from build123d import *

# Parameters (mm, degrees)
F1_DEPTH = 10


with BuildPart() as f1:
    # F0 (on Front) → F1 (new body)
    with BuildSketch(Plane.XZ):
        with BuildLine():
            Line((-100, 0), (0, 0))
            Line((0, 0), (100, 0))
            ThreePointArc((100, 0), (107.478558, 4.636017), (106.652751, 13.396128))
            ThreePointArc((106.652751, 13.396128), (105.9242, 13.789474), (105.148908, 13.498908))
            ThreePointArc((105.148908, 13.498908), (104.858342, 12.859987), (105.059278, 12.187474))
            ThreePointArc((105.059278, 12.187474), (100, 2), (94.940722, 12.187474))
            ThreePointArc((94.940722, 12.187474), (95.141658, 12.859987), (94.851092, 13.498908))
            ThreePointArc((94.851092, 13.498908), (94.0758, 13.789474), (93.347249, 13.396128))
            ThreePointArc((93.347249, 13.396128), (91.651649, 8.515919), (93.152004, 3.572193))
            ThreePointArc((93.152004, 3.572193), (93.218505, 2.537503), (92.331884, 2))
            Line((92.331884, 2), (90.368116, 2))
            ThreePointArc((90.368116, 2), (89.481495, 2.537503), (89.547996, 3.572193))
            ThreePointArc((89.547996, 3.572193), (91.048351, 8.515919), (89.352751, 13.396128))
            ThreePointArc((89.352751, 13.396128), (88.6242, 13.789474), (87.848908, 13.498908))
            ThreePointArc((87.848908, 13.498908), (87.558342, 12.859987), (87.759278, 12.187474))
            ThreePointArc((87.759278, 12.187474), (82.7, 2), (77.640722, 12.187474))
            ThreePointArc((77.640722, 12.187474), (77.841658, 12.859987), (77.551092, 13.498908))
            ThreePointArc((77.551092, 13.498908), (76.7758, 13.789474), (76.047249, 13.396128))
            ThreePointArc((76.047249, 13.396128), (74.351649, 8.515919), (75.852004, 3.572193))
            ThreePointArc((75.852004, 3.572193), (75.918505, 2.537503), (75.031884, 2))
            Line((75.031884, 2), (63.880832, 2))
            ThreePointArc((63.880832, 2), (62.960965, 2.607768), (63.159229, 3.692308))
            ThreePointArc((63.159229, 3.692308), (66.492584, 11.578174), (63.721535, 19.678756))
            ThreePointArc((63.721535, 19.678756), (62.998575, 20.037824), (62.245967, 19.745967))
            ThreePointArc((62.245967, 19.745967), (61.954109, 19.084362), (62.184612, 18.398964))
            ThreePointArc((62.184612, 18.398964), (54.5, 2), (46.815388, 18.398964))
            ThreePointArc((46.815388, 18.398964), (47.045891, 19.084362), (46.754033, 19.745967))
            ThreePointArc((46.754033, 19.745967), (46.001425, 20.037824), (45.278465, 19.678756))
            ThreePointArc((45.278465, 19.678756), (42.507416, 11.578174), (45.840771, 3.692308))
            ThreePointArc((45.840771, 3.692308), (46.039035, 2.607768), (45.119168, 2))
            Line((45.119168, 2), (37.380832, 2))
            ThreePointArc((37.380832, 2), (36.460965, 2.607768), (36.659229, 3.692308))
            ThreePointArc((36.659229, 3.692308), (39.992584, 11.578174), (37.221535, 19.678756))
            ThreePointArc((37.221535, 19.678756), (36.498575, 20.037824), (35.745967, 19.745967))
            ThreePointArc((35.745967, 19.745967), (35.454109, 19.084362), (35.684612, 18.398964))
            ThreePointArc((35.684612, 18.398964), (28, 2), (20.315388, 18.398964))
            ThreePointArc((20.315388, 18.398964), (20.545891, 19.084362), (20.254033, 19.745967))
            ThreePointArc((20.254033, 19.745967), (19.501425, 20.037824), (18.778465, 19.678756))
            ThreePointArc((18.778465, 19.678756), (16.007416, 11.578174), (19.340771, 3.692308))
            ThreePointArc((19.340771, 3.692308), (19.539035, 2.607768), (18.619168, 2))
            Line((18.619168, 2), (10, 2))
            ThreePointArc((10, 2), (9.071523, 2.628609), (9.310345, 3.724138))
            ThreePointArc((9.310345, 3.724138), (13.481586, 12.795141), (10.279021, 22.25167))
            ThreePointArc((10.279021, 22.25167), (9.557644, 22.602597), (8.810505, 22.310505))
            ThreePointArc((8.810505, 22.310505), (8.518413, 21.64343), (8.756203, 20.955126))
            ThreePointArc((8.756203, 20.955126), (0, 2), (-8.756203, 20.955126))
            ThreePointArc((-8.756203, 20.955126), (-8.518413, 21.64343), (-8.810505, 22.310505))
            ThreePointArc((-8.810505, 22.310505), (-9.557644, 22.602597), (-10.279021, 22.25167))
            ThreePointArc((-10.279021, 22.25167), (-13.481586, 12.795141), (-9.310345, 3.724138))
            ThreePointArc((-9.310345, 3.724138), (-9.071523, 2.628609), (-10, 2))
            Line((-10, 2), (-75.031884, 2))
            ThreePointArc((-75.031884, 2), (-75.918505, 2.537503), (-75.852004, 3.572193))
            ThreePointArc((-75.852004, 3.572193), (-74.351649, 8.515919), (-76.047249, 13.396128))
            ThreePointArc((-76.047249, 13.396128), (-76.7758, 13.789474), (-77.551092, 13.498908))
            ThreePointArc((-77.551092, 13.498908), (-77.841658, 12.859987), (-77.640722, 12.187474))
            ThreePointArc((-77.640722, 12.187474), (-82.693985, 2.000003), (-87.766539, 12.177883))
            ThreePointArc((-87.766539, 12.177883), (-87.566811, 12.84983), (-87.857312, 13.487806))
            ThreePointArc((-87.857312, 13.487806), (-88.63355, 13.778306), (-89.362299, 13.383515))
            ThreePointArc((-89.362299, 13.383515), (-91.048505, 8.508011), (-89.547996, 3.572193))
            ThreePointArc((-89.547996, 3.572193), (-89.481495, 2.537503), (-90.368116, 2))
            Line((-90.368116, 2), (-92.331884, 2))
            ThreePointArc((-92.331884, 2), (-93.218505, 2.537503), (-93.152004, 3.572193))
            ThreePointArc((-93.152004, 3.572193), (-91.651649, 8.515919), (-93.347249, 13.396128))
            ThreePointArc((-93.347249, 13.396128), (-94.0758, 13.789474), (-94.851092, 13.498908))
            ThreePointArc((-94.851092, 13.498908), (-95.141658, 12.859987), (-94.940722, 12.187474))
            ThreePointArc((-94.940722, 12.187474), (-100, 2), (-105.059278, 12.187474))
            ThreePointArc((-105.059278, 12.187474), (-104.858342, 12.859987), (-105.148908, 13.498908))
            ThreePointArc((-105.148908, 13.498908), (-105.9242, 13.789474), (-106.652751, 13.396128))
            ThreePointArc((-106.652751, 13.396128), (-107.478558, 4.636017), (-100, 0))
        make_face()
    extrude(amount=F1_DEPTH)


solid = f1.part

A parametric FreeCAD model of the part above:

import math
import FreeCAD as App
import Part
import Sketcher
from FreeCAD import Vector
Q = App.Units.Quantity

doc = App.newDocument("Part")
params = doc.addObject("Spreadsheet::Sheet", "Params")
for row, (alias, value) in enumerate([
    ("sketch1_radius", "0.999999 mm"),
    ("sketch1_radius2", "11.999999 mm"),
    ("sketch1_radius3", "13.500001 mm"),
    ("sketch1_width", "200 mm"),
    ("sketch1_radius4", "8.35 mm"),
    ("pad1_length", "10 mm"),
], start=1):
    params.set(f"A{row}", alias)
    params.set(f"B{row}", "=" + value)
    params.setAlias(f"B{row}", alias)

body = doc.addObject("PartDesign::Body", "Body")

# Sketch on XZ plane
sketch1 = doc.addObject("Sketcher::SketchObject", "Sketch")
body.addObject(sketch1)
sketch1.AttachmentSupport = (doc.XZ_Plane, [""])
sketch1.MapMode = "FlatFace"
sketch1.addGeometry([
    Part.LineSegment(Vector(-100, 0, 0), Vector(100, 0, 0)),  # 0
    Part.ArcOfCircle(Part.Circle(Vector(100, 8.35, 0), Vector(0, 0, 1), 8.35), math.radians(-89.999999), math.radians(37.180405)),  # 1
    Part.ArcOfCircle(Part.Circle(Vector(105.856015, 12.791802, 0), Vector(0, 0, 1), 0.999999), math.radians(37.180388), math.radians(135.000023)),  # 2
    Part.ArcOfCircle(Part.Circle(Vector(105.856015, 12.791801, 0), Vector(0, 0, 1), 1), math.radians(134.999998), math.radians(217.180398)),  # 3
    Part.ArcOfCircle(Part.Circle(Vector(100, 8.35, 0), Vector(0, 0, 1), 6.35), math.radians(142.819599), math.radians(397.180401)),  # 4
    Part.ArcOfCircle(Part.Circle(Vector(94.143985, 12.791801, 0), Vector(0, 0, 1), 1), math.radians(-37.180398), math.radians(45.000002)),  # 5
    Part.ArcOfCircle(Part.Circle(Vector(94.143985, 12.791802, 0), Vector(0, 0, 1), 0.999999), math.radians(44.999977), math.radians(142.819612)),  # 6
    Part.ArcOfCircle(Part.Circle(Vector(100.000001, 8.350001, 0), Vector(0, 0, 1), 8.35), math.radians(142.819601), math.radians(214.903258)),  # 7
    Part.ArcOfCircle(Part.Circle(Vector(92.331884, 3.000001, 0), Vector(0, 0, 1), 1.000001), math.radians(-89.999986), math.radians(34.903221)),  # 8
    Part.LineSegment(Vector(92.331884, 2, 0), Vector(90.368116, 2, 0)),  # 9
    Part.ArcOfCircle(Part.Circle(Vector(90.368116, 3.000001, 0), Vector(0, 0, 1), 1.000001), math.radians(145.096779), math.radians(269.999986)),  # 10
    Part.ArcOfCircle(Part.Circle(Vector(82.699999, 8.350001, 0), Vector(0, 0, 1), 8.35), math.radians(-34.903258), math.radians(37.180399)),  # 11
    Part.ArcOfCircle(Part.Circle(Vector(88.556015, 12.791802, 0), Vector(0, 0, 1), 0.999999), math.radians(37.180388), math.radians(135.000023)),  # 12
    Part.ArcOfCircle(Part.Circle(Vector(88.556015, 12.791801, 0), Vector(0, 0, 1), 1), math.radians(134.999998), math.radians(217.180398)),  # 13
    Part.ArcOfCircle(Part.Circle(Vector(82.7, 8.35, 0), Vector(0, 0, 1), 6.35), math.radians(142.819599), math.radians(397.180401)),  # 14
    Part.ArcOfCircle(Part.Circle(Vector(76.843985, 12.791801, 0), Vector(0, 0, 1), 1), math.radians(-37.180398), math.radians(45.000002)),  # 15
    Part.ArcOfCircle(Part.Circle(Vector(76.843985, 12.791802, 0), Vector(0, 0, 1), 0.999999), math.radians(44.999977), math.radians(142.819612)),  # 16
    Part.ArcOfCircle(Part.Circle(Vector(82.700001, 8.350001, 0), Vector(0, 0, 1), 8.35), math.radians(142.819601), math.radians(214.903258)),  # 17
    Part.ArcOfCircle(Part.Circle(Vector(75.031884, 3.000001, 0), Vector(0, 0, 1), 1.000001), math.radians(-89.999986), math.radians(34.903221)),  # 18
    Part.LineSegment(Vector(75.031884, 2, 0), Vector(63.880832, 2, 0)),  # 19
    Part.ArcOfCircle(Part.Circle(Vector(63.880831, 3, 0), Vector(0, 0, 1), 1), math.radians(136.18693), math.radians(270.000034)),  # 20
    Part.ArcOfCircle(Part.Circle(Vector(54.500002, 12, 0), Vector(0, 0, 1), 11.999999), math.radians(-43.813067), math.radians(39.784094)),  # 21
    Part.ArcOfCircle(Part.Circle(Vector(62.953073, 19.038859, 0), Vector(0, 0, 1), 1), math.radians(39.784098), math.radians(134.999949)),  # 22
    Part.ArcOfCircle(Part.Circle(Vector(62.953072, 19.03886, 0), Vector(0, 0, 1), 0.999999), math.radians(134.999937), math.radians(219.784106)),  # 23
    Part.ArcOfCircle(Part.Circle(Vector(54.5, 12, 0), Vector(0, 0, 1), 10), math.radians(140.215906), math.radians(399.784094)),  # 24
    Part.ArcOfCircle(Part.Circle(Vector(46.046928, 19.03886, 0), Vector(0, 0, 1), 0.999999), math.radians(-39.784106), math.radians(45.000063)),  # 25
    Part.ArcOfCircle(Part.Circle(Vector(46.046927, 19.038859, 0), Vector(0, 0, 1), 1), math.radians(45.000051), math.radians(140.215902)),  # 26
    Part.ArcOfCircle(Part.Circle(Vector(54.499998, 12, 0), Vector(0, 0, 1), 11.999999), math.radians(140.215906), math.radians(223.813067)),  # 27
    Part.ArcOfCircle(Part.Circle(Vector(45.119169, 3, 0), Vector(0, 0, 1), 1), math.radians(-90.000034), math.radians(43.81307)),  # 28
    Part.LineSegment(Vector(45.119168, 2, 0), Vector(37.380832, 2, 0)),  # 29
    Part.ArcOfCircle(Part.Circle(Vector(37.380831, 3, 0), Vector(0, 0, 1), 1), math.radians(136.18693), math.radians(270.000034)),  # 30
    Part.ArcOfCircle(Part.Circle(Vector(28.000002, 12, 0), Vector(0, 0, 1), 11.999999), math.radians(-43.813067), math.radians(39.784094)),  # 31
    Part.ArcOfCircle(Part.Circle(Vector(36.453073, 19.038859, 0), Vector(0, 0, 1), 1), math.radians(39.784098), math.radians(134.999949)),  # 32
    Part.ArcOfCircle(Part.Circle(Vector(36.453072, 19.03886, 0), Vector(0, 0, 1), 0.999999), math.radians(134.999937), math.radians(219.784106)),  # 33
    Part.ArcOfCircle(Part.Circle(Vector(28, 12, 0), Vector(0, 0, 1), 10), math.radians(140.215906), math.radians(399.784094)),  # 34
    Part.ArcOfCircle(Part.Circle(Vector(19.546928, 19.03886, 0), Vector(0, 0, 1), 0.999999), math.radians(-39.784106), math.radians(45.000063)),  # 35
    Part.ArcOfCircle(Part.Circle(Vector(19.546927, 19.038859, 0), Vector(0, 0, 1), 1), math.radians(45.000051), math.radians(140.215902)),  # 36
    Part.ArcOfCircle(Part.Circle(Vector(27.999998, 12, 0), Vector(0, 0, 1), 11.999999), math.radians(140.215906), math.radians(223.813067)),  # 37
    Part.ArcOfCircle(Part.Circle(Vector(18.619169, 3, 0), Vector(0, 0, 1), 1), math.radians(-90.000034), math.radians(43.81307)),  # 38
    Part.LineSegment(Vector(18.619168, 2, 0), Vector(10, 2, 0)),  # 39
    Part.ArcOfCircle(Part.Circle(Vector(9.999999, 3, 0), Vector(0, 0, 1), 1), math.radians(133.602771), math.radians(270.000037)),  # 40
    Part.ArcOfCircle(Part.Circle(Vector(-0.000002, 13.5, 0), Vector(0, 0, 1), 13.500001), math.radians(-46.397175), math.radians(40.411428)),  # 41
    Part.ArcOfCircle(Part.Circle(Vector(9.517612, 21.603399, 0), Vector(0, 0, 1), 0.999999), math.radians(40.411383), math.radians(135.000045)),  # 42
    Part.ArcOfCircle(Part.Circle(Vector(9.517611, 21.603398, 0), Vector(0, 0, 1), 0.999999), math.radians(134.999949), math.radians(220.4115)),  # 43
    Part.ArcOfCircle(Part.Circle(Vector(0, 13.5, 0), Vector(0, 0, 1), 11.5), math.radians(139.588567), math.radians(400.411433)),  # 44
    Part.ArcOfCircle(Part.Circle(Vector(-9.517611, 21.603398, 0), Vector(0, 0, 1), 0.999999), math.radians(-40.4115), math.radians(45.000051)),  # 45
    Part.ArcOfCircle(Part.Circle(Vector(-9.517612, 21.603399, 0), Vector(0, 0, 1), 0.999999), math.radians(44.999955), math.radians(139.588617)),  # 46
    Part.ArcOfCircle(Part.Circle(Vector(0.000002, 13.5, 0), Vector(0, 0, 1), 13.500001), math.radians(139.588572), math.radians(226.397175)),  # 47
    Part.ArcOfCircle(Part.Circle(Vector(-9.999999, 3, 0), Vector(0, 0, 1), 1), math.radians(-90.000037), math.radians(46.397229)),  # 48
    Part.LineSegment(Vector(-10, 2, 0), Vector(-75.031884, 2, 0)),  # 49
    Part.ArcOfCircle(Part.Circle(Vector(-75.031884, 3.000001, 0), Vector(0, 0, 1), 1.000001), math.radians(145.096779), math.radians(269.999986)),  # 50
    Part.ArcOfCircle(Part.Circle(Vector(-82.700001, 8.350001, 0), Vector(0, 0, 1), 8.35), math.radians(-34.903258), math.radians(37.180399)),  # 51
    Part.ArcOfCircle(Part.Circle(Vector(-76.843985, 12.791802, 0), Vector(0, 0, 1), 0.999999), math.radians(37.180388), math.radians(135.000023)),  # 52
    Part.ArcOfCircle(Part.Circle(Vector(-76.843985, 12.791801, 0), Vector(0, 0, 1), 1), math.radians(134.999998), math.radians(217.180398)),  # 53
    Part.ArcOfCircle(Part.Circle(Vector(-82.7, 8.35, 0), Vector(0, 0, 1), 6.35), math.radians(142.928142), math.radians(397.180398)),  # 54
    Part.ArcOfCircle(Part.Circle(Vector(-88.564418, 12.780699, 0), Vector(0, 0, 1), 0.999999), math.radians(-37.071924), math.radians(45.000037)),  # 55
    Part.ArcOfCircle(Part.Circle(Vector(-88.564419, 12.780697, 0), Vector(0, 0, 1), 1.000001), math.radians(45.000094), math.radians(142.928076)),  # 56
    Part.ArcOfCircle(Part.Circle(Vector(-82.700003, 8.350001, 0), Vector(0, 0, 1), 8.349998), math.radians(142.928135), math.radians(214.903271)),  # 57
    Part.ArcOfCircle(Part.Circle(Vector(-90.368116, 3.000001, 0), Vector(0, 0, 1), 1.000001), math.radians(-89.999986), math.radians(34.903221)),  # 58
    Part.LineSegment(Vector(-90.368116, 2, 0), Vector(-92.331884, 2, 0)),  # 59
    Part.ArcOfCircle(Part.Circle(Vector(-92.331884, 3.000001, 0), Vector(0, 0, 1), 1.000001), math.radians(145.096779), math.radians(269.999986)),  # 60
    Part.ArcOfCircle(Part.Circle(Vector(-100.000001, 8.350001, 0), Vector(0, 0, 1), 8.35), math.radians(-34.903258), math.radians(37.180399)),  # 61
    Part.ArcOfCircle(Part.Circle(Vector(-94.143985, 12.791802, 0), Vector(0, 0, 1), 0.999999), math.radians(37.180388), math.radians(135.000023)),  # 62
    Part.ArcOfCircle(Part.Circle(Vector(-94.143985, 12.791801, 0), Vector(0, 0, 1), 1), math.radians(134.999998), math.radians(217.180398)),  # 63
    Part.ArcOfCircle(Part.Circle(Vector(-100, 8.35, 0), Vector(0, 0, 1), 6.35), math.radians(142.819599), math.radians(397.180401)),  # 64
    Part.ArcOfCircle(Part.Circle(Vector(-105.856015, 12.791801, 0), Vector(0, 0, 1), 1), math.radians(-37.180398), math.radians(45.000002)),  # 65
    Part.ArcOfCircle(Part.Circle(Vector(-105.856015, 12.791802, 0), Vector(0, 0, 1), 0.999999), math.radians(44.999977), math.radians(142.819612)),  # 66
    Part.ArcOfCircle(Part.Circle(Vector(-100, 8.35, 0), Vector(0, 0, 1), 8.35), math.radians(142.819595), math.radians(269.999999)),  # 67
], False)
sketch1.addConstraint([
    Sketcher.Constraint("Tangent", 0, 2, 1, 1),
    Sketcher.Constraint("Tangent", 1, 2, 2, 1),
    Sketcher.Constraint("Tangent", 2, 2, 3, 1),
    Sketcher.Constraint("Tangent", 3, 2, 4, 2),
    Sketcher.Constraint("Tangent", 4, 1, 5, 1),
    Sketcher.Constraint("Tangent", 5, 2, 6, 1),
    Sketcher.Constraint("Tangent", 6, 2, 7, 1),
    Sketcher.Constraint("Tangent", 7, 2, 8, 2),
    Sketcher.Constraint("Tangent", 8, 1, 9, 1),
    Sketcher.Constraint("Tangent", 9, 2, 10, 2),
    Sketcher.Constraint("Tangent", 10, 1, 11, 1),
    Sketcher.Constraint("Tangent", 11, 2, 12, 1),
    Sketcher.Constraint("Tangent", 12, 2, 13, 1),
    Sketcher.Constraint("Tangent", 13, 2, 14, 2),
    Sketcher.Constraint("Tangent", 14, 1, 15, 1),
    Sketcher.Constraint("Tangent", 15, 2, 16, 1),
    Sketcher.Constraint("Tangent", 16, 2, 17, 1),
    Sketcher.Constraint("Tangent", 17, 2, 18, 2),
    Sketcher.Constraint("Tangent", 18, 1, 19, 1),
    Sketcher.Constraint("Tangent", 19, 2, 20, 2),
    Sketcher.Constraint("Tangent", 20, 1, 21, 1),
    Sketcher.Constraint("Tangent", 21, 2, 22, 1),
    Sketcher.Constraint("Tangent", 22, 2, 23, 1),
    Sketcher.Constraint("Tangent", 23, 2, 24, 2),
    Sketcher.Constraint("Tangent", 24, 1, 25, 1),
    Sketcher.Constraint("Tangent", 25, 2, 26, 1),
    Sketcher.Constraint("Tangent", 26, 2, 27, 1),
    Sketcher.Constraint("Tangent", 27, 2, 28, 2),
    Sketcher.Constraint("Tangent", 28, 1, 29, 1),
    Sketcher.Constraint("Tangent", 29, 2, 30, 2),
    Sketcher.Constraint("Tangent", 30, 1, 31, 1),
    Sketcher.Constraint("Tangent", 31, 2, 32, 1),
    Sketcher.Constraint("Tangent", 32, 2, 33, 1),
    Sketcher.Constraint("Tangent", 33, 2, 34, 2),
    Sketcher.Constraint("Tangent", 34, 1, 35, 1),
    Sketcher.Constraint("Tangent", 35, 2, 36, 1),
    Sketcher.Constraint("Tangent", 36, 2, 37, 1),
    Sketcher.Constraint("Tangent", 37, 2, 38, 2),
    Sketcher.Constraint("Tangent", 38, 1, 39, 1),
    Sketcher.Constraint("Tangent", 39, 2, 40, 2),
    Sketcher.Constraint("Tangent", 40, 1, 41, 1),
    Sketcher.Constraint("Tangent", 41, 2, 42, 1),
    Sketcher.Constraint("Tangent", 42, 2, 43, 1),
    Sketcher.Constraint("Tangent", 43, 2, 44, 2),
    Sketcher.Constraint("Tangent", 44, 1, 45, 1),
    Sketcher.Constraint("Tangent", 45, 2, 46, 1),
    Sketcher.Constraint("Tangent", 46, 2, 47, 1),
    Sketcher.Constraint("Tangent", 47, 2, 48, 2),
    Sketcher.Constraint("Tangent", 48, 1, 49, 1),
    Sketcher.Constraint("Tangent", 49, 2, 50, 2),
    Sketcher.Constraint("Tangent", 50, 1, 51, 1),
    Sketcher.Constraint("Tangent", 51, 2, 52, 1),
    Sketcher.Constraint("Tangent", 52, 2, 53, 1),
    Sketcher.Constraint("Tangent", 53, 2, 54, 2),
    Sketcher.Constraint("Tangent", 54, 1, 55, 1),
    Sketcher.Constraint("Tangent", 55, 2, 56, 1),
    Sketcher.Constraint("Tangent", 56, 2, 57, 1),
    Sketcher.Constraint("Tangent", 57, 2, 58, 2),
    Sketcher.Constraint("Tangent", 58, 1, 59, 1),
    Sketcher.Constraint("Tangent", 59, 2, 60, 2),
    Sketcher.Constraint("Tangent", 60, 1, 61, 1),
    Sketcher.Constraint("Tangent", 61, 2, 62, 1),
    Sketcher.Constraint("Tangent", 62, 2, 63, 1),
    Sketcher.Constraint("Tangent", 63, 2, 64, 2),
    Sketcher.Constraint("Tangent", 64, 1, 65, 1),
    Sketcher.Constraint("Tangent", 65, 2, 66, 1),
    Sketcher.Constraint("Tangent", 66, 2, 67, 1),
    Sketcher.Constraint("Tangent", 67, 2, 0, 1),
    Sketcher.Constraint("Horizontal", 0),
    Sketcher.Constraint("Horizontal", 9),
    Sketcher.Constraint("Horizontal", 19),
    Sketcher.Constraint("Horizontal", 29),
    Sketcher.Constraint("Horizontal", 39),
    Sketcher.Constraint("Horizontal", 49),
    Sketcher.Constraint("Horizontal", 59),
    Sketcher.Constraint("Coincident", 4, 3, 1, 3),
    Sketcher.Constraint("Coincident", 7, 3, 1, 3),
    Sketcher.Constraint("Coincident", 14, 3, 11, 3),
    Sketcher.Constraint("Coincident", 17, 3, 11, 3),
    Sketcher.Constraint("Coincident", 24, 3, 21, 3),
    Sketcher.Constraint("Coincident", 27, 3, 21, 3),
    Sketcher.Constraint("Coincident", 34, 3, 31, 3),
    Sketcher.Constraint("Coincident", 37, 3, 31, 3),
    Sketcher.Constraint("Coincident", 44, 3, 41, 3),
    Sketcher.Constraint("Coincident", 47, 3, 41, 3),
    Sketcher.Constraint("Coincident", 54, 3, 51, 3),
    Sketcher.Constraint("Coincident", 57, 3, 51, 3),
    Sketcher.Constraint("Coincident", 64, 3, 61, 3),
    Sketcher.Constraint("Coincident", 67, 3, 61, 3),
    Sketcher.Constraint("Equal", 2, 3),
    Sketcher.Constraint("Equal", 3, 5),
    Sketcher.Constraint("Equal", 5, 6),
    Sketcher.Constraint("Equal", 6, 8),
    Sketcher.Constraint("Equal", 8, 10),
    Sketcher.Constraint("Equal", 7, 11),
    Sketcher.Constraint("Equal", 10, 12),
    Sketcher.Constraint("Equal", 12, 13),
    Sketcher.Constraint("Equal", 13, 15),
    Sketcher.Constraint("Equal", 15, 16),
    Sketcher.Constraint("Equal", 16, 18),
    Sketcher.Constraint("Equal", 18, 20),
    Sketcher.Constraint("Equal", 20, 22),
    Sketcher.Constraint("Equal", 22, 23),
    Sketcher.Constraint("Equal", 23, 25),
    Sketcher.Constraint("Equal", 25, 26),
    Sketcher.Constraint("Equal", 26, 28),
    Sketcher.Constraint("Equal", 28, 30),
    Sketcher.Constraint("Equal", 27, 31),
    Sketcher.Constraint("Equal", 30, 32),
    Sketcher.Constraint("Equal", 32, 33),
    Sketcher.Constraint("Equal", 33, 35),
    Sketcher.Constraint("Equal", 35, 36),
    Sketcher.Constraint("Equal", 36, 38),
    Sketcher.Constraint("Equal", 38, 40),
    Sketcher.Constraint("Equal", 40, 42),
    Sketcher.Constraint("Equal", 42, 43),
    Sketcher.Constraint("Equal", 43, 45),
    Sketcher.Constraint("Equal", 45, 46),
    Sketcher.Constraint("Equal", 46, 48),
    Sketcher.Constraint("Equal", 48, 50),
    Sketcher.Constraint("Equal", 17, 51),
    Sketcher.Constraint("Equal", 50, 52),
    Sketcher.Constraint("Equal", 52, 53),
    Sketcher.Constraint("Equal", 53, 55),
    Sketcher.Constraint("Equal", 53, 56),
    Sketcher.Constraint("Equal", 56, 58),
    Sketcher.Constraint("Equal", 58, 60),
    Sketcher.Constraint("Equal", 51, 61),
    Sketcher.Constraint("Equal", 60, 62),
    Sketcher.Constraint("Equal", 62, 63),
    Sketcher.Constraint("Equal", 63, 65),
    Sketcher.Constraint("Equal", 65, 66),
    Sketcher.Constraint("Symmetric", 0, 2, 67, 2, -1, 1),
    Sketcher.Constraint("Symmetric", 42, 3, 45, 3, -2),
    Sketcher.Constraint("Symmetric", 18, 3, 50, 3, -2),
    Sketcher.Constraint("Symmetric", 15, 3, 52, 3, -2),
    Sketcher.Constraint("Symmetric", 5, 2, 62, 2, -2),
    Sketcher.Constraint("Symmetric", 2, 2, 65, 2, -2),
    Sketcher.Constraint("Horizontal", 3, 3, 5, 3),
    Sketcher.Constraint("Horizontal", 7, 3, 11, 3),
    Sketcher.Constraint("Horizontal", 6, 3, 12, 3),
    Sketcher.Constraint("Horizontal", 13, 3, 15, 3),
    Sketcher.Constraint("Horizontal", 10, 3, 18, 3),
    Sketcher.Constraint("Horizontal", 23, 3, 25, 3),
    Sketcher.Constraint("Horizontal", 20, 3, 28, 3),
    Sketcher.Constraint("Horizontal", 27, 3, 31, 3),
    Sketcher.Constraint("Horizontal", 26, 3, 32, 3),
    Sketcher.Constraint("Horizontal", 33, 3, 35, 3),
    Sketcher.Constraint("Horizontal", 30, 3, 38, 3),
    Sketcher.Constraint("Horizontal", 50, 3, 58, 3),
    Sketcher.Constraint("Horizontal", 2, 2, 5, 2),
    Sketcher.Constraint("Horizontal", 5, 2, 12, 2),
    Sketcher.Constraint("Horizontal", 12, 2, 15, 2),
    Sketcher.Constraint("Horizontal", 22, 2, 25, 2),
    Sketcher.Constraint("Horizontal", 25, 2, 32, 2),
    Sketcher.Constraint("Horizontal", 32, 2, 35, 2),
    Sketcher.Constraint("Horizontal", 42, 2, 45, 2),
    Sketcher.Constraint("Horizontal", 15, 2, 52, 2),
    Sketcher.Constraint("Radius", 2, Q("0.999999 mm")),
    Sketcher.Constraint("Radius", 21, Q("11.999999 mm")),
    Sketcher.Constraint("Radius", 41, Q("13.500001 mm")),
    Sketcher.Constraint("DistanceX", 0, 1, 0, 2, Q("200 mm")),
    Sketcher.Constraint("Radius", 1, Q("8.35 mm")),
    Sketcher.Constraint("DistanceY", -1, 1, 8, 3, Q("3.000001 mm")),
    Sketcher.Constraint("DistanceY", -1, 1, 21, 3, Q("12 mm")),
    Sketcher.Constraint("DistanceX", -1, 1, 31, 3, Q("28.000002 mm")),
    Sketcher.Constraint("DistanceX", -1, 1, 40, 3, Q("9.999999 mm")),
    Sketcher.Constraint("DistanceX", -1, 1, 11, 3, Q("82.699999 mm")),
    Sketcher.Constraint("DistanceX", -1, 1, 21, 3, Q("54.500002 mm")),
    Sketcher.Constraint("DistanceY", -1, 1, 2, 3, Q("12.791802 mm")),
    Sketcher.Constraint("DistanceY", -1, 1, 42, 3, Q("21.603399 mm")),
    Sketcher.Constraint("DistanceY", -1, 1, 55, 3, Q("12.780699 mm")),
    Sketcher.Constraint("DistanceY", -1, 1, 22, 3, Q("19.038859 mm")),
    Sketcher.Constraint("DistanceY", -1, 1, 2, 2, Q("13.498908 mm")),
    Sketcher.Constraint("DistanceX", 55, 2, -1, 1, Q("87.857312 mm")),
    Sketcher.Constraint("DistanceX", -1, 1, 22, 2, Q("62.245967 mm")),
    Sketcher.Constraint("DistanceX", -1, 1, 42, 2, Q("8.810505 mm")),
])
sketch1.setExpression("Constraints[158]", "Params.sketch1_radius")
sketch1.setExpression("Constraints[159]", "Params.sketch1_radius2")
sketch1.setExpression("Constraints[160]", "Params.sketch1_radius3")
sketch1.setExpression("Constraints[161]", "Params.sketch1_width")
sketch1.setExpression("Constraints[162]", "Params.sketch1_radius4")
pad1 = doc.addObject("PartDesign::Pad", "Pad")
body.addObject(pad1)
pad1.Profile = sketch1
pad1.setExpression("Length", "Params.pad1_length")

doc.recompute()
